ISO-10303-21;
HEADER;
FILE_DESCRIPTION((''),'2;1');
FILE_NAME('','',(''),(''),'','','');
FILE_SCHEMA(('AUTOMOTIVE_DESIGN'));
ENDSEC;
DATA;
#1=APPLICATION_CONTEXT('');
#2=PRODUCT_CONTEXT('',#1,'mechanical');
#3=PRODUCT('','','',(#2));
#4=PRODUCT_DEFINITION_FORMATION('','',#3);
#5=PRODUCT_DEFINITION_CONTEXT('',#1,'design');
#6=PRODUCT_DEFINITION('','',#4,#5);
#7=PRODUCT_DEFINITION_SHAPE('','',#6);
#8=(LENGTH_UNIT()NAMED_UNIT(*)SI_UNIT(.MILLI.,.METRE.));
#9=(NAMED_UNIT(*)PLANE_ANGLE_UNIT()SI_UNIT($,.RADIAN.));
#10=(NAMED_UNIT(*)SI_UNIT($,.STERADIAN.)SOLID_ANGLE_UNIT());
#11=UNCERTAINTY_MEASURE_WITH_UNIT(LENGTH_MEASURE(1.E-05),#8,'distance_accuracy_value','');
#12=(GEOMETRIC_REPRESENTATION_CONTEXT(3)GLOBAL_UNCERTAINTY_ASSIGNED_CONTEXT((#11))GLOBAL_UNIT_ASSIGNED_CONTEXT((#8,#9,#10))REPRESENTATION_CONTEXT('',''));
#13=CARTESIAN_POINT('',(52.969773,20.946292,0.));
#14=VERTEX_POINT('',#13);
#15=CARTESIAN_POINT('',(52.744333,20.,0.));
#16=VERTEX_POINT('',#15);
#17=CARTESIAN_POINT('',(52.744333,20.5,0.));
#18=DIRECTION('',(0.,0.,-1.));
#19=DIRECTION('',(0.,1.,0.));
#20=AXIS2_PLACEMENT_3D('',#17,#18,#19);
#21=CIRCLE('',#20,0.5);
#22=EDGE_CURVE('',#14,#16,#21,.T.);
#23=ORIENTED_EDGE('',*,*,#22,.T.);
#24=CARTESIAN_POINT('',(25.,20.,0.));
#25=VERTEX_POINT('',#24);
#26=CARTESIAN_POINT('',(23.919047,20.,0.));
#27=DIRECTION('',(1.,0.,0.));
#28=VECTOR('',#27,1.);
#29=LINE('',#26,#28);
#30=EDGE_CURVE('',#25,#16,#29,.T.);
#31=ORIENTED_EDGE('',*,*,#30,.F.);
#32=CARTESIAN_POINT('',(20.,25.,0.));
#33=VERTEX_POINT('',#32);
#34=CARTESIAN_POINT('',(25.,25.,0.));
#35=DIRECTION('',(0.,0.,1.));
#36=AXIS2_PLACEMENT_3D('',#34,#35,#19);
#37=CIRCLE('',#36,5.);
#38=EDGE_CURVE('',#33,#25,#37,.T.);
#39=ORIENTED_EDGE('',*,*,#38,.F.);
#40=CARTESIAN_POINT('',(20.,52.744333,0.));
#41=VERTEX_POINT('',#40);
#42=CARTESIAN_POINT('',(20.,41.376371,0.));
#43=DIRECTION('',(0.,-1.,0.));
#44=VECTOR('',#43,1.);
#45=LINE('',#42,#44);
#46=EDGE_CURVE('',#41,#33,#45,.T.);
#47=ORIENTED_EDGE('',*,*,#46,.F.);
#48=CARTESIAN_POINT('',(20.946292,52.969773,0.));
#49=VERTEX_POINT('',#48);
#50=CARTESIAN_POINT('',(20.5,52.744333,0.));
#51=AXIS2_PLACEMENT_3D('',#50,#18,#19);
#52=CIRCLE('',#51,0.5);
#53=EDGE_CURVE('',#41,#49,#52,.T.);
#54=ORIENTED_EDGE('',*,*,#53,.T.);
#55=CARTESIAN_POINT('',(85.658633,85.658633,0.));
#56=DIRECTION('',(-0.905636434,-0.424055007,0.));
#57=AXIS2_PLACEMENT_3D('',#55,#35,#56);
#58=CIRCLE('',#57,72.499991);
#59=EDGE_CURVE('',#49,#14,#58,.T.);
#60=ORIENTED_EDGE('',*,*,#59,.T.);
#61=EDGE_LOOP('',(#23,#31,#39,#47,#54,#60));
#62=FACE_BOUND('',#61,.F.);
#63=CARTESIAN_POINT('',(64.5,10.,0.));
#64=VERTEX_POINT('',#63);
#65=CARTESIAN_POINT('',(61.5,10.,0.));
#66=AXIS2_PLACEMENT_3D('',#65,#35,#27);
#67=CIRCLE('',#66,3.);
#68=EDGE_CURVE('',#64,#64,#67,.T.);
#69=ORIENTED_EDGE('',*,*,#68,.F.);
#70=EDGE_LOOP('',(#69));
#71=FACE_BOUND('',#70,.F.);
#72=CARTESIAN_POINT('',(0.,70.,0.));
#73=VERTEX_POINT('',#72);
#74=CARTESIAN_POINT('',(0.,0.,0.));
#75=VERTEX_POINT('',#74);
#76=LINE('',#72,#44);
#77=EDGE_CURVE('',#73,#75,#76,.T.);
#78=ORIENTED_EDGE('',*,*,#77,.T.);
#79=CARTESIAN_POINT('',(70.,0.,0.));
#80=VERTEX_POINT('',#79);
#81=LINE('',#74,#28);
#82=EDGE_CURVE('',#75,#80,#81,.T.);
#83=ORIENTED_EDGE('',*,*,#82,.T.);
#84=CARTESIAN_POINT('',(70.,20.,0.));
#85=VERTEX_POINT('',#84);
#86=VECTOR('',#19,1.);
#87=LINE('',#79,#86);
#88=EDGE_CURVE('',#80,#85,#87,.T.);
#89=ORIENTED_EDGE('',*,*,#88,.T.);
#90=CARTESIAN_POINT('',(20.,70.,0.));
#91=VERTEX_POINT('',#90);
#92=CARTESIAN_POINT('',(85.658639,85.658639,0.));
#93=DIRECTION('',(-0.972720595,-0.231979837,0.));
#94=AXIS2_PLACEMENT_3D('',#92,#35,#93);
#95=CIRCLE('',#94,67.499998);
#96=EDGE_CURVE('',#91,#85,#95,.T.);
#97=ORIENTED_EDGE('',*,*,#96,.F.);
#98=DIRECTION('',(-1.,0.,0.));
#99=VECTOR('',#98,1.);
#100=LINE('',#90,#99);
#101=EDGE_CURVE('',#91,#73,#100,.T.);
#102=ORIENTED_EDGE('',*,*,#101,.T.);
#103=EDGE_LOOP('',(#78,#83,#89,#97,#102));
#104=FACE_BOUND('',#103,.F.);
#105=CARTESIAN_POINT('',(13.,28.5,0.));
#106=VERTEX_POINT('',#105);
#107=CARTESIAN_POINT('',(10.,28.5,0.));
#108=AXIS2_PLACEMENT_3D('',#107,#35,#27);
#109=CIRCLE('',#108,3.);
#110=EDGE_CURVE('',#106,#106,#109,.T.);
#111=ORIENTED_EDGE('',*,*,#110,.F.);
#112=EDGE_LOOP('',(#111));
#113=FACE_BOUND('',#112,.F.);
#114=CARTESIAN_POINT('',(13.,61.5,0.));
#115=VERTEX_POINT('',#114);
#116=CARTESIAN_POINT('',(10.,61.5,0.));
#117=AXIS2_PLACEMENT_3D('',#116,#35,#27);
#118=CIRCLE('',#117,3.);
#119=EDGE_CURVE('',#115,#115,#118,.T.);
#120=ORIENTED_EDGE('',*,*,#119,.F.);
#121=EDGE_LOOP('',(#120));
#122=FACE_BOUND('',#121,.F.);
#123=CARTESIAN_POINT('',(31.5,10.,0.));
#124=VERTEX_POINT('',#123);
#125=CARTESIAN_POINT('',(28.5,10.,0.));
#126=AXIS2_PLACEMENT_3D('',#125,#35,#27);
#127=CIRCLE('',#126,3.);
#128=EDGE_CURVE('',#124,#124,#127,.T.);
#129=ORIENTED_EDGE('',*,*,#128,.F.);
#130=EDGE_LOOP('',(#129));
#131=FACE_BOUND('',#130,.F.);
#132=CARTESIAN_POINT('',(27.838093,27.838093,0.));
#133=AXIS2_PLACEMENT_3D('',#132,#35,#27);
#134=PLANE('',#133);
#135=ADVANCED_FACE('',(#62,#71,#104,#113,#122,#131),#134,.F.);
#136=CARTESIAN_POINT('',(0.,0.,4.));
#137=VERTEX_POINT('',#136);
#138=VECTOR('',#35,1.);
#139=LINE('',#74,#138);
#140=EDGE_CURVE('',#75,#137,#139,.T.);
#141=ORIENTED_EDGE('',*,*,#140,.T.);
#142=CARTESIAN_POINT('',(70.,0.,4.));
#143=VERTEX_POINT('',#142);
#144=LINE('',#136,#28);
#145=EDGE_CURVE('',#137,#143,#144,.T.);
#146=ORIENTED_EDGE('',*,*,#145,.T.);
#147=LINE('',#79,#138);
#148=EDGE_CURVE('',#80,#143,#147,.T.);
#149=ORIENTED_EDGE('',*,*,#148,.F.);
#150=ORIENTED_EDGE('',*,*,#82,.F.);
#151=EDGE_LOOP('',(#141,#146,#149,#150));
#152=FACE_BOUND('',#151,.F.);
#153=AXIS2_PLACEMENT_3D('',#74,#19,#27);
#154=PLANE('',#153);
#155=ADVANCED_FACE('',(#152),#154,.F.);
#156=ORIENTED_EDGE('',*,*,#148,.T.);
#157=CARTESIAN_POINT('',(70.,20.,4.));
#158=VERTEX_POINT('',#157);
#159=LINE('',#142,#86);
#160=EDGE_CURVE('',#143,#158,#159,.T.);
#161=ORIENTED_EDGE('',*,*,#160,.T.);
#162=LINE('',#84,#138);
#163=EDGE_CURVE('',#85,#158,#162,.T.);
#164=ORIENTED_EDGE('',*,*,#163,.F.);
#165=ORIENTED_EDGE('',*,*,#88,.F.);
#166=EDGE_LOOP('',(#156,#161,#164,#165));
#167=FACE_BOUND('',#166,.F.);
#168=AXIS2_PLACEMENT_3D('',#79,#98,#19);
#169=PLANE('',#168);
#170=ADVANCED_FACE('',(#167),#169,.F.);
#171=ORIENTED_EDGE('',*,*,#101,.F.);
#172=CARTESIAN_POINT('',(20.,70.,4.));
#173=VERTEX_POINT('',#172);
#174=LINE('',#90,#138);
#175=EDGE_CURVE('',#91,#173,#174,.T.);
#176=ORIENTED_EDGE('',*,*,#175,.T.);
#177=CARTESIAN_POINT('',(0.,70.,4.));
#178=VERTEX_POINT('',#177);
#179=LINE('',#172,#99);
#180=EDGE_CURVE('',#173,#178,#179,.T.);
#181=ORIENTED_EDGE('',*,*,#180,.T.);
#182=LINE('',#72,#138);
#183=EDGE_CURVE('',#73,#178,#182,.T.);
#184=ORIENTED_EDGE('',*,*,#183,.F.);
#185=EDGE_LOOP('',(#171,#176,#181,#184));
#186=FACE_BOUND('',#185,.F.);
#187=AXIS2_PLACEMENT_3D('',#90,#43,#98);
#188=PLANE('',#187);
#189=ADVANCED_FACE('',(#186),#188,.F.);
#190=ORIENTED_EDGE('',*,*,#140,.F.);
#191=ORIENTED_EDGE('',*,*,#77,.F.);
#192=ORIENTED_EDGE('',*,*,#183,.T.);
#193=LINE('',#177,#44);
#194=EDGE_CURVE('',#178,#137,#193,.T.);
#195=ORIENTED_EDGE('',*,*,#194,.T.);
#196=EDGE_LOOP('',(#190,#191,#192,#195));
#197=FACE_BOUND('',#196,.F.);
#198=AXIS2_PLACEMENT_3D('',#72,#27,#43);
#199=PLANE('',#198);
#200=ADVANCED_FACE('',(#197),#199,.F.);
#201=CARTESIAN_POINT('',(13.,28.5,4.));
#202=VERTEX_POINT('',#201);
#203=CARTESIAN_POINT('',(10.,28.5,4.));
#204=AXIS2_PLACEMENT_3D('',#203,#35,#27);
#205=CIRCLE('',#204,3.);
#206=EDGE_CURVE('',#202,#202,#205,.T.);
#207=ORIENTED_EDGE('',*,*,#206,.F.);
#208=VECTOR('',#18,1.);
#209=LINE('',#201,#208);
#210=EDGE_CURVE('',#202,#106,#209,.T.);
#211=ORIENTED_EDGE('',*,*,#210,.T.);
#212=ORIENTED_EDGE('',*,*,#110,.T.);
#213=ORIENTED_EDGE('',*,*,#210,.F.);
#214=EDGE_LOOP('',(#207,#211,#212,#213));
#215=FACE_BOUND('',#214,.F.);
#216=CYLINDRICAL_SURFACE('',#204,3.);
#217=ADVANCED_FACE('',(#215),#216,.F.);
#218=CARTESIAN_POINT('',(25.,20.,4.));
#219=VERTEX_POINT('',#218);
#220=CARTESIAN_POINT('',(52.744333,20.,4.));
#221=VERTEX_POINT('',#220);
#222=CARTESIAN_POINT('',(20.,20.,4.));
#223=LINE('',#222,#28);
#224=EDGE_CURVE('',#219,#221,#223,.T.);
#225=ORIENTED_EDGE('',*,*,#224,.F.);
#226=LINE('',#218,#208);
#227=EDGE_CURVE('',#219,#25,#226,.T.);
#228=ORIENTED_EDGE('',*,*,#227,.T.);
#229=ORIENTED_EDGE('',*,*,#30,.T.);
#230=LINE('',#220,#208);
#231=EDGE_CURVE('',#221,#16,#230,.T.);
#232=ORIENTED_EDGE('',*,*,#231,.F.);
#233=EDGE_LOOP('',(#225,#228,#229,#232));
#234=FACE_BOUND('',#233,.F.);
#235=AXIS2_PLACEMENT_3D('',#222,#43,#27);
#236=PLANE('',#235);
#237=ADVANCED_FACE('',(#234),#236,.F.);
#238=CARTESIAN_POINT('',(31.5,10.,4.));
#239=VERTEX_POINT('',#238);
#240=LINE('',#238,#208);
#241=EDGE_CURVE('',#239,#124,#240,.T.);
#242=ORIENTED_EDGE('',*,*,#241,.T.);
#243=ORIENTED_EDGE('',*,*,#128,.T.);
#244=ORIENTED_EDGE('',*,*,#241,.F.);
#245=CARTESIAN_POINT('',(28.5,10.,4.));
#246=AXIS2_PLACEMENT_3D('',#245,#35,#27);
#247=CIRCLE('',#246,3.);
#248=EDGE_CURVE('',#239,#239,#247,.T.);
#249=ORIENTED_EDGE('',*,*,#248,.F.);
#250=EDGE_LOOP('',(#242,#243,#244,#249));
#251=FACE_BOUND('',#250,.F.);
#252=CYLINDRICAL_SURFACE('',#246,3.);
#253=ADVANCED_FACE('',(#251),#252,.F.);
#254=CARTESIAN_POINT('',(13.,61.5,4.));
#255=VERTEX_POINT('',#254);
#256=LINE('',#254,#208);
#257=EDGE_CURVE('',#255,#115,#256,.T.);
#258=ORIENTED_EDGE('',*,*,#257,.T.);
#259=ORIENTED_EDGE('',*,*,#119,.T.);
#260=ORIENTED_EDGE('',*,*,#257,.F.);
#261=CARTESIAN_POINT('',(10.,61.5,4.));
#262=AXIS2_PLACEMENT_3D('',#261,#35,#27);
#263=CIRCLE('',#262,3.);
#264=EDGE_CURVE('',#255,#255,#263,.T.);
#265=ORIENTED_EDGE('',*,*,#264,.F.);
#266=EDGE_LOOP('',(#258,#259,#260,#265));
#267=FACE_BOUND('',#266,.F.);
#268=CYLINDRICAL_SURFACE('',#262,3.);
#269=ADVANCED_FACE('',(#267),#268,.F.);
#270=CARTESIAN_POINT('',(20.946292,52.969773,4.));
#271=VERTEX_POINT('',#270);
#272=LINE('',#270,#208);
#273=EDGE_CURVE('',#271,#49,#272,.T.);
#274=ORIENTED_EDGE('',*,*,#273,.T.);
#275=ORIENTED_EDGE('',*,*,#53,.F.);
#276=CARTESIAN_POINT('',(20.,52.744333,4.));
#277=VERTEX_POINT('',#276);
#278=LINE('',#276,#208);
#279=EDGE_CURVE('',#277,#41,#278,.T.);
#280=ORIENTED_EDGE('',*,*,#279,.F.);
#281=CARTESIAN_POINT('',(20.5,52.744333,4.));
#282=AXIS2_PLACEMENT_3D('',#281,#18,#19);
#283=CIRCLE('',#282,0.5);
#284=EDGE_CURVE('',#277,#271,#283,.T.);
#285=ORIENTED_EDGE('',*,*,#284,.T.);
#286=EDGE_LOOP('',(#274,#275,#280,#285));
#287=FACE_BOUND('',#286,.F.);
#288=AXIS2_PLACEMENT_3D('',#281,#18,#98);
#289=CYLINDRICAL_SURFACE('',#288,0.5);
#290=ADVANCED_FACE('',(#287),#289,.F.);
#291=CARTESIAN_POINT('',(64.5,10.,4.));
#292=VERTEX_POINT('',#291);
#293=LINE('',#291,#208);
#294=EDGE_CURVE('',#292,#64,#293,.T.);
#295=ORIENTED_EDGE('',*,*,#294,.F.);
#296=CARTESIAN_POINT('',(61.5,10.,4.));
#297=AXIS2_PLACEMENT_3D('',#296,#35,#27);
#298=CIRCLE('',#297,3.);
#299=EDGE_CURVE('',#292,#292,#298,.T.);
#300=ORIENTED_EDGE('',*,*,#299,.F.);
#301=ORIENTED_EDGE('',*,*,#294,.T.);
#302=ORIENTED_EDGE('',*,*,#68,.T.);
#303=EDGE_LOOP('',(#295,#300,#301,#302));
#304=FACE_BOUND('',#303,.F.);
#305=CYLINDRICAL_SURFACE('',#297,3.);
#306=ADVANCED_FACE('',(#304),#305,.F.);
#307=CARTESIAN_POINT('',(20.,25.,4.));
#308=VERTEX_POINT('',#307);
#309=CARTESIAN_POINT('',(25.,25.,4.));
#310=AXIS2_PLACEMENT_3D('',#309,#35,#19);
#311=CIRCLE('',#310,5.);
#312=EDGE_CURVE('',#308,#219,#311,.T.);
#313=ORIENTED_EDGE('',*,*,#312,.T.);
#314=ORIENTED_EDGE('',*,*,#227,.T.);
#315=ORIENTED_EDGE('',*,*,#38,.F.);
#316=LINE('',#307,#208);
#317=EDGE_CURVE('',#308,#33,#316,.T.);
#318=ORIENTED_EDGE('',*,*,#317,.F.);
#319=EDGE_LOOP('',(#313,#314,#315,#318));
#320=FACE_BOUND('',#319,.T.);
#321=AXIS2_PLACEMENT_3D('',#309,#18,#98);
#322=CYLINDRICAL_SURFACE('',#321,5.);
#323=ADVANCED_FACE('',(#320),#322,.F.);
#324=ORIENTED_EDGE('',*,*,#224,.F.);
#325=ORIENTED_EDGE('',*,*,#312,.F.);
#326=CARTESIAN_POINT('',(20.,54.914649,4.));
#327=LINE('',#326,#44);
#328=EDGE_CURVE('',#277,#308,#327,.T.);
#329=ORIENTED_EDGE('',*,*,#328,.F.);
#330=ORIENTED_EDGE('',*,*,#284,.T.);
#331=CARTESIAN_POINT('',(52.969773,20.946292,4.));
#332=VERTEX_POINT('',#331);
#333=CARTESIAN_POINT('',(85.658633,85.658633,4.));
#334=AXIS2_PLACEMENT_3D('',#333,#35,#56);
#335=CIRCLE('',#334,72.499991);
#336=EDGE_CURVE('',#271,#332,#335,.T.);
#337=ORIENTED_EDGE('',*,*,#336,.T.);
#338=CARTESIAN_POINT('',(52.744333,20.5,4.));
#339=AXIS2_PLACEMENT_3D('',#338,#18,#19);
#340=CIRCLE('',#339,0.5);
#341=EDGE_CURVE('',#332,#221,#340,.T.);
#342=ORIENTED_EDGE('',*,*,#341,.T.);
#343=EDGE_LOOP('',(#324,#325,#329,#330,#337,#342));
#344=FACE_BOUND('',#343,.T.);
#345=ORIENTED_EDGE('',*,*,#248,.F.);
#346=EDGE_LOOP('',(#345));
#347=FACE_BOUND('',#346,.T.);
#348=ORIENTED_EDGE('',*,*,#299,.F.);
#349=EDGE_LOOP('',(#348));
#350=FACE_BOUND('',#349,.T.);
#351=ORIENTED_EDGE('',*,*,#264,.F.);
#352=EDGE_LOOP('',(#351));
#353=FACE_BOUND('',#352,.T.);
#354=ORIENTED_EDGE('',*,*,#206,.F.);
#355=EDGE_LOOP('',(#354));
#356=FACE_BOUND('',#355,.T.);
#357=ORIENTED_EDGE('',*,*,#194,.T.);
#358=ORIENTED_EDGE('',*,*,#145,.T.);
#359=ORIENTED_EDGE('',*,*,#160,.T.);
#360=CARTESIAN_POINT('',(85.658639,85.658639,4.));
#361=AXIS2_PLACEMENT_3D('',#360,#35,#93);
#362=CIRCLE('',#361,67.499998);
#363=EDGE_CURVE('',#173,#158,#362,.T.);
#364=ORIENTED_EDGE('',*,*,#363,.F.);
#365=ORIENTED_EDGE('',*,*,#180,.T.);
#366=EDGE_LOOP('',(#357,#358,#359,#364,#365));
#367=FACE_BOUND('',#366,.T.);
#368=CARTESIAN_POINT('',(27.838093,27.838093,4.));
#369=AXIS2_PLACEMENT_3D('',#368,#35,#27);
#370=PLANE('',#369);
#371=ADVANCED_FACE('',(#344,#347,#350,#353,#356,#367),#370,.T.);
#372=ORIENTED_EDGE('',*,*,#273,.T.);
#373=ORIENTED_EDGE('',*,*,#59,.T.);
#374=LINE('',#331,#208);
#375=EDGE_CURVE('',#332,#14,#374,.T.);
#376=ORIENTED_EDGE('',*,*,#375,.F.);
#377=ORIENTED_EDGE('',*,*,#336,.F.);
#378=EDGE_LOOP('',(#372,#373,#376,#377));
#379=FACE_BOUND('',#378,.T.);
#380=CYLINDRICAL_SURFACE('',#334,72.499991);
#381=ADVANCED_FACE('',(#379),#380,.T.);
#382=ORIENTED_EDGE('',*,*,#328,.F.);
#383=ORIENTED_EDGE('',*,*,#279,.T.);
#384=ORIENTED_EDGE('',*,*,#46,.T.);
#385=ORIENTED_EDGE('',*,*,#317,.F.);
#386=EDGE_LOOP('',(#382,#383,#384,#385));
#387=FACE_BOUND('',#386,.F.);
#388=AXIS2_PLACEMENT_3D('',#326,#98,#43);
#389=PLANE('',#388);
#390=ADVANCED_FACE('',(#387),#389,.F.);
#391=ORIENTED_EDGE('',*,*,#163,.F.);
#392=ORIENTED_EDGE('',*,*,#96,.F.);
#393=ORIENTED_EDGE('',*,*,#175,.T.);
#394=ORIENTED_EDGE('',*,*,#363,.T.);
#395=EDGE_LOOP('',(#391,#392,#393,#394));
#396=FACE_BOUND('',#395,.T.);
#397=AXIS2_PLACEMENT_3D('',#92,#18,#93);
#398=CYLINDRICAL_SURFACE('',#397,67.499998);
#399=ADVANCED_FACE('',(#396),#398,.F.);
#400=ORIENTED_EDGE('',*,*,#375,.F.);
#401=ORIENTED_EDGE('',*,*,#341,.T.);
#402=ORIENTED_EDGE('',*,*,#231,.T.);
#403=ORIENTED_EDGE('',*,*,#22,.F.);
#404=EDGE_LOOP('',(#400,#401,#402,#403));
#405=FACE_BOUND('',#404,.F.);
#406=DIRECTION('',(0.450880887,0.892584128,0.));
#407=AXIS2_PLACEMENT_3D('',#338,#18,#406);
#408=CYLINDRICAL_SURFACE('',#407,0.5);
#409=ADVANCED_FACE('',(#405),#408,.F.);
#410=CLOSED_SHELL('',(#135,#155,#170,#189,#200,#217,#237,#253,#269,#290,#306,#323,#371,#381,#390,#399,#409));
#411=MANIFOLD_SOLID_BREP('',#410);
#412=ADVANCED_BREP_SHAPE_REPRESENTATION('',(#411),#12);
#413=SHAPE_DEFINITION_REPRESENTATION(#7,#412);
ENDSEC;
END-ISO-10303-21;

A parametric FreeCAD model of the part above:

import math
import FreeCAD as App
import Part
import Sketcher

V = App.Vector


def edges_at(feature, points):
    """Names of the edges that pass closest to the given points."""
    edges = feature.Shape.Edges
    near = lambda p: min(range(len(edges)), key=lambda i: edges[i].distToShape(Part.Vertex(*p))[0])
    return sorted({f"Edge{near(p) + 1}" for p in points})

doc = App.newDocument("Part")
body = doc.addObject("PartDesign::Body", "Body")

# Sketch on XY plane
sketch1 = doc.addObject("Sketcher::SketchObject", "Sketch")
body.addObject(sketch1)
sketch1.AttachmentSupport = (doc.XY_Plane, [""])
sketch1.MapMode = "FlatFace"
sketch1.addGeometry(Part.LineSegment(V(0, 0, 0), V(70, 0, 0)), False)
sketch1.addGeometry(Part.LineSegment(V(70, 0, 0), V(70, 20, 0)), False)
sketch1.addGeometry(Part.ArcOfCircle(Part.Circle(V(85.658639, 85.658639, 0), V(0, 0, 1), 67.499998), math.radians(-166.586339), math.radians(-103.413661)), False)
sketch1.addGeometry(Part.LineSegment(V(20, 70, 0), V(0, 70, 0)), False)
sketch1.addGeometry(Part.LineSegment(V(0, 70, 0), V(0, 0, 0)), False)
sketch1.addConstraint(Sketcher.Constraint("Coincident", 0, 2, 1, 1))
sketch1.addConstraint(Sketcher.Constraint("Coincident", 1, 2, 2, 2))
sketch1.addConstraint(Sketcher.Constraint("Coincident", 2, 1, 3, 1))
sketch1.addConstraint(Sketcher.Constraint("Coincident", 3, 2, 4, 1))
sketch1.addConstraint(Sketcher.Constraint("Coincident", 4, 2, 0, 1))
sketch1.addConstraint(Sketcher.Constraint("Horizontal", 0))
sketch1.addConstraint(Sketcher.Constraint("Vertical", 1))
sketch1.addConstraint(Sketcher.Constraint("Horizontal", 3))
sketch1.addConstraint(Sketcher.Constraint("Vertical", 4))
sketch1.addConstraint(Sketcher.Constraint("Coincident", 4, 2, -1, 1))
sketch1.addConstraint(Sketcher.Constraint("Equal", 3, 1))
sketch1.addConstraint(Sketcher.Constraint("Equal", 0, 4))
sketch1.addConstraint(Sketcher.Constraint("Radius", 2, 67.499998))
sketch1.addConstraint(Sketcher.Constraint("DistanceX", 0, 1, 0, 2, 70.0))
sketch1.addConstraint(Sketcher.Constraint("DistanceX", 3, 2, 3, 1, 20.0))
pad1 = doc.addObject("PartDesign::Pad", "Pad")
body.addObject(pad1)
pad1.Profile = sketch1
pad1.Length = 4

# Sketch on XY plane
sketch2 = doc.addObject("Sketcher::SketchObject", "Sketch001")
body.addObject(sketch2)
sketch2.AttachmentSupport = (doc.XY_Plane, [""])
sketch2.MapMode = "FlatFace"
sketch2.AttachmentOffset = App.Placement(V(0, 0, 4), App.Rotation())
sketch2.addGeometry(Part.ArcOfCircle(Part.Circle(V(85.658633, 85.658633, 0), V(0, 0, 1), 72.499991), math.radians(-154.909137), math.radians(-115.090863)), False)
sketch2.addGeometry(Part.LineSegment(V(20, 54.914649, 0), V(20, 20, 0)), False)
sketch2.addGeometry(Part.LineSegment(V(20, 20, 0), V(54.914649, 20, 0)), False)
sketch2.addConstraint(Sketcher.Constraint("Coincident", 0, 1, 1, 1))
sketch2.addConstraint(Sketcher.Constraint("Coincident", 1, 2, 2, 1))
sketch2.addConstraint(Sketcher.Constraint("Coincident", 2, 2, 0, 2))
sketch2.addConstraint(Sketcher.Constraint("Vertical", 1))
sketch2.addConstraint(Sketcher.Constraint("Horizontal", 2))
sketch2.addConstraint(Sketcher.Constraint("Equal", 2, 1))
sketch2.addConstraint(Sketcher.Constraint("DistanceX", -1, 1, 0, 1, 20.0))
sketch2.addConstraint(Sketcher.Constraint("DistanceY", -1, 1, 1, 2, 20.0))
sketch2.addConstraint(Sketcher.Constraint("Radius", 0, 72.499991))
sketch2.addConstraint(Sketcher.Constraint("DistanceX", 2, 1, 2, 2, 34.914649))
pocket1 = doc.addObject("PartDesign::Pocket", "Pocket")
body.addObject(pocket1)
pocket1.Profile = sketch2
pocket1.Type = "ThroughAll"

# Sketch on XY plane
sketch3 = doc.addObject("Sketcher::SketchObject", "Sketch002")
body.addObject(sketch3)
sketch3.AttachmentSupport = (doc.XY_Plane, [""])
sketch3.MapMode = "FlatFace"
sketch3.AttachmentOffset = App.Placement(V(0, 0, 4), App.Rotation())
sketch3.addGeometry(Part.Circle(V(10, 28.5, 0), V(0, 0, 1), 3), False)
sketch3.addGeometry(Part.Circle(V(10, 61.5, 0), V(0, 0, 1), 3), False)
sketch3.addGeometry(Part.Circle(V(28.5, 10, 0), V(0, 0, 1), 3), False)
sketch3.addGeometry(Part.Circle(V(61.5, 10, 0), V(0, 0, 1), 3), False)
sketch3.addConstraint(Sketcher.Constraint("Equal", 0, 1))
sketch3.addConstraint(Sketcher.Constraint("Equal", 1, 2))
sketch3.addConstraint(Sketcher.Constraint("Equal", 2, 3))
sketch3.addConstraint(Sketcher.Constraint("Horizontal", 2, 3, 3, 3))
sketch3.addConstraint(Sketcher.Constraint("Vertical", 0, 3, 1, 3))
sketch3.addConstraint(Sketcher.Constraint("Diameter", 0, 6.0))
sketch3.addConstraint(Sketcher.Constraint("DistanceX", -1, 1, 0, 3, 10.0))
sketch3.addConstraint(Sketcher.Constraint("DistanceY", -1, 1, 2, 3, 10.0))
sketch3.addConstraint(Sketcher.Constraint("DistanceY", 0, 3, 1, 3, 33.0))
sketch3.addConstraint(Sketcher.Constraint("DistanceX", 2, 3, 3, 3, 33.0))
sketch3.addConstraint(Sketcher.Constraint("DistanceY", -1, 1, 0, 3, 28.5))
sketch3.addConstraint(Sketcher.Constraint("DistanceX", -1, 1, 2, 3, 28.5))
pocket2 = doc.addObject("PartDesign::Pocket", "Pocket001")
body.addObject(pocket2)
pocket2.Profile = sketch3
pocket2.Type = "ThroughAll"
doc.recompute()

fillet = doc.addObject("PartDesign::Fillet", "Fillet")
body.addObject(fillet)
fillet.Base = (pocket2, edges_at(pocket2, [(20, 20, 2)]))
fillet.Radius = 5
doc.recompute()

fillet2 = doc.addObject("PartDesign::Fillet", "Fillet001")
body.addObject(fillet2)
fillet2.Base = (fillet, edges_at(fillet, [(20, 54.915, 2), (54.915, 20, 2)]))
fillet2.Radius = 0.5

doc.recompute()
